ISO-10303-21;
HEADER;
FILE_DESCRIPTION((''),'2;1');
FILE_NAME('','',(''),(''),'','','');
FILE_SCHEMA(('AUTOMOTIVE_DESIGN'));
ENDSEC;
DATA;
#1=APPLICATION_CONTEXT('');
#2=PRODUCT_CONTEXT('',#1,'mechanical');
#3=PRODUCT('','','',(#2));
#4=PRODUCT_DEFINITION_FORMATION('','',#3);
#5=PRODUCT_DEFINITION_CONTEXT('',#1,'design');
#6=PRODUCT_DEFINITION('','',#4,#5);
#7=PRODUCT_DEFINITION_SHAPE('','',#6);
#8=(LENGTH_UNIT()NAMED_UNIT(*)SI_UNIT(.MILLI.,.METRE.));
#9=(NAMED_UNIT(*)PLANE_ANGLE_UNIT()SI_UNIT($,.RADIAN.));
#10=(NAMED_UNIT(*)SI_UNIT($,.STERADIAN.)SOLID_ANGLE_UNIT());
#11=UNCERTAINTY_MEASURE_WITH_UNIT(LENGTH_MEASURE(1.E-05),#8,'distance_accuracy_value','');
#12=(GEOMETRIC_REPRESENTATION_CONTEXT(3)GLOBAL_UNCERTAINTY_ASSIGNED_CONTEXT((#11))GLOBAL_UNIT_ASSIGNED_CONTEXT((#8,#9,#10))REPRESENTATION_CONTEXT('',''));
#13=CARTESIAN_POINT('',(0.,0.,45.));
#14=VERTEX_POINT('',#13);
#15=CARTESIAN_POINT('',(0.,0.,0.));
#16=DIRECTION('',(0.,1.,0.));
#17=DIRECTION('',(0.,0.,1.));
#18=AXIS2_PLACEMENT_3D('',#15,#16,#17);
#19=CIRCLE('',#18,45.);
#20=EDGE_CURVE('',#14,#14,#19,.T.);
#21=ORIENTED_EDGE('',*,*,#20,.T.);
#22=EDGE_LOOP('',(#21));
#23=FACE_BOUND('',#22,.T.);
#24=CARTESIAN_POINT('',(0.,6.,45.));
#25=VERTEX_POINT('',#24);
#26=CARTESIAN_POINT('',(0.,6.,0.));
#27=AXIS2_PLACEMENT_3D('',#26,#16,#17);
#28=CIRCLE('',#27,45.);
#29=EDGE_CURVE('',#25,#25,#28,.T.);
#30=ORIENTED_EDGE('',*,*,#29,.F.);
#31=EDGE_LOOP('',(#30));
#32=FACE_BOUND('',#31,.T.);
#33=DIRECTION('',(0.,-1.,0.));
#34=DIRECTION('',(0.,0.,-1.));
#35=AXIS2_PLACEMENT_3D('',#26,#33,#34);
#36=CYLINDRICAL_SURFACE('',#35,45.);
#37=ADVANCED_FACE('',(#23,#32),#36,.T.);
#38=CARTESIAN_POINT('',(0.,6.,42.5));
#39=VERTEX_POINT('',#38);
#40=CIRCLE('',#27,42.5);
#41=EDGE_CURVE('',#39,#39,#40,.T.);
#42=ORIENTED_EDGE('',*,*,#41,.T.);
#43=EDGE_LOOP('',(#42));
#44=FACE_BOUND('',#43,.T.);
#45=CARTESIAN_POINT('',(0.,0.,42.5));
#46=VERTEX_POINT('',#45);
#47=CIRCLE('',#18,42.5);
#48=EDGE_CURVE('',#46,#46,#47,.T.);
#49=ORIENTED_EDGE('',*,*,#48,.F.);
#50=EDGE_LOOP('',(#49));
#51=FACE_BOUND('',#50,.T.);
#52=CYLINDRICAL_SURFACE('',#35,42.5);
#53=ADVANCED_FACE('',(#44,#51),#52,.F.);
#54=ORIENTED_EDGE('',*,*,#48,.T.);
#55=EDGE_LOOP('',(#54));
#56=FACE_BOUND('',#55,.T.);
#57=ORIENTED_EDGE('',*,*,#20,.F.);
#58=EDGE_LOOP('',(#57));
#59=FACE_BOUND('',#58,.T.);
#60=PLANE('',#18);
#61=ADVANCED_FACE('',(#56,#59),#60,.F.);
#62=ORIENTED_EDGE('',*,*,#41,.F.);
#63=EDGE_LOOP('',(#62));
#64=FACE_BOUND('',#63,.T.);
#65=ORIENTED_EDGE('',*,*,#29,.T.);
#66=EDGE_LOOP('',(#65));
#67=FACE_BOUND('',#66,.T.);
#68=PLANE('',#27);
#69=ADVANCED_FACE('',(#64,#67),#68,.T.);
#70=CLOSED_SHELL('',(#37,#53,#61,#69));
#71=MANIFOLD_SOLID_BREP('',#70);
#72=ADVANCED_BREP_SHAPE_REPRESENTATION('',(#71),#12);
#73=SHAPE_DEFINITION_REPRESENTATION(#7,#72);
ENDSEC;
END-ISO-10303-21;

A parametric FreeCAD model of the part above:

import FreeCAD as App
import Part
import Sketcher

V = App.Vector
Q = App.Units.Quantity

doc = App.newDocument("Part")
body = doc.addObject("PartDesign::Body", "Body")

sketch1 = body.newObject("Sketcher::SketchObject", "Sketch")
sketch1.AttachmentSupport = (doc.getObject("XZ_Plane"), [""])
sketch1.MapMode = "FlatFace"
sketch1.addGeometry(Part.Circle(V(0, 0, 0), V(0, 0, 1), 45), False)
sketch1.addGeometry(Part.Circle(V(0, 0, 0), V(0, 0, 1), 42.5), False)
sketch1.addConstraint(Sketcher.Constraint("Coincident", 0, 3, -1, 1))
sketch1.addConstraint(Sketcher.Constraint("Coincident", 1, 3, -1, 1))
sketch1.addConstraint(Sketcher.Constraint("Diameter", 0, Q("90 mm")))
sketch1.addConstraint(Sketcher.Constraint("Diameter", 1, Q("85 mm")))
pad1 = body.newObject("PartDesign::Pad", "Pad")
pad1.Profile = sketch1
pad1.Length = 6
pad1.Reversed = True

doc.recompute()
